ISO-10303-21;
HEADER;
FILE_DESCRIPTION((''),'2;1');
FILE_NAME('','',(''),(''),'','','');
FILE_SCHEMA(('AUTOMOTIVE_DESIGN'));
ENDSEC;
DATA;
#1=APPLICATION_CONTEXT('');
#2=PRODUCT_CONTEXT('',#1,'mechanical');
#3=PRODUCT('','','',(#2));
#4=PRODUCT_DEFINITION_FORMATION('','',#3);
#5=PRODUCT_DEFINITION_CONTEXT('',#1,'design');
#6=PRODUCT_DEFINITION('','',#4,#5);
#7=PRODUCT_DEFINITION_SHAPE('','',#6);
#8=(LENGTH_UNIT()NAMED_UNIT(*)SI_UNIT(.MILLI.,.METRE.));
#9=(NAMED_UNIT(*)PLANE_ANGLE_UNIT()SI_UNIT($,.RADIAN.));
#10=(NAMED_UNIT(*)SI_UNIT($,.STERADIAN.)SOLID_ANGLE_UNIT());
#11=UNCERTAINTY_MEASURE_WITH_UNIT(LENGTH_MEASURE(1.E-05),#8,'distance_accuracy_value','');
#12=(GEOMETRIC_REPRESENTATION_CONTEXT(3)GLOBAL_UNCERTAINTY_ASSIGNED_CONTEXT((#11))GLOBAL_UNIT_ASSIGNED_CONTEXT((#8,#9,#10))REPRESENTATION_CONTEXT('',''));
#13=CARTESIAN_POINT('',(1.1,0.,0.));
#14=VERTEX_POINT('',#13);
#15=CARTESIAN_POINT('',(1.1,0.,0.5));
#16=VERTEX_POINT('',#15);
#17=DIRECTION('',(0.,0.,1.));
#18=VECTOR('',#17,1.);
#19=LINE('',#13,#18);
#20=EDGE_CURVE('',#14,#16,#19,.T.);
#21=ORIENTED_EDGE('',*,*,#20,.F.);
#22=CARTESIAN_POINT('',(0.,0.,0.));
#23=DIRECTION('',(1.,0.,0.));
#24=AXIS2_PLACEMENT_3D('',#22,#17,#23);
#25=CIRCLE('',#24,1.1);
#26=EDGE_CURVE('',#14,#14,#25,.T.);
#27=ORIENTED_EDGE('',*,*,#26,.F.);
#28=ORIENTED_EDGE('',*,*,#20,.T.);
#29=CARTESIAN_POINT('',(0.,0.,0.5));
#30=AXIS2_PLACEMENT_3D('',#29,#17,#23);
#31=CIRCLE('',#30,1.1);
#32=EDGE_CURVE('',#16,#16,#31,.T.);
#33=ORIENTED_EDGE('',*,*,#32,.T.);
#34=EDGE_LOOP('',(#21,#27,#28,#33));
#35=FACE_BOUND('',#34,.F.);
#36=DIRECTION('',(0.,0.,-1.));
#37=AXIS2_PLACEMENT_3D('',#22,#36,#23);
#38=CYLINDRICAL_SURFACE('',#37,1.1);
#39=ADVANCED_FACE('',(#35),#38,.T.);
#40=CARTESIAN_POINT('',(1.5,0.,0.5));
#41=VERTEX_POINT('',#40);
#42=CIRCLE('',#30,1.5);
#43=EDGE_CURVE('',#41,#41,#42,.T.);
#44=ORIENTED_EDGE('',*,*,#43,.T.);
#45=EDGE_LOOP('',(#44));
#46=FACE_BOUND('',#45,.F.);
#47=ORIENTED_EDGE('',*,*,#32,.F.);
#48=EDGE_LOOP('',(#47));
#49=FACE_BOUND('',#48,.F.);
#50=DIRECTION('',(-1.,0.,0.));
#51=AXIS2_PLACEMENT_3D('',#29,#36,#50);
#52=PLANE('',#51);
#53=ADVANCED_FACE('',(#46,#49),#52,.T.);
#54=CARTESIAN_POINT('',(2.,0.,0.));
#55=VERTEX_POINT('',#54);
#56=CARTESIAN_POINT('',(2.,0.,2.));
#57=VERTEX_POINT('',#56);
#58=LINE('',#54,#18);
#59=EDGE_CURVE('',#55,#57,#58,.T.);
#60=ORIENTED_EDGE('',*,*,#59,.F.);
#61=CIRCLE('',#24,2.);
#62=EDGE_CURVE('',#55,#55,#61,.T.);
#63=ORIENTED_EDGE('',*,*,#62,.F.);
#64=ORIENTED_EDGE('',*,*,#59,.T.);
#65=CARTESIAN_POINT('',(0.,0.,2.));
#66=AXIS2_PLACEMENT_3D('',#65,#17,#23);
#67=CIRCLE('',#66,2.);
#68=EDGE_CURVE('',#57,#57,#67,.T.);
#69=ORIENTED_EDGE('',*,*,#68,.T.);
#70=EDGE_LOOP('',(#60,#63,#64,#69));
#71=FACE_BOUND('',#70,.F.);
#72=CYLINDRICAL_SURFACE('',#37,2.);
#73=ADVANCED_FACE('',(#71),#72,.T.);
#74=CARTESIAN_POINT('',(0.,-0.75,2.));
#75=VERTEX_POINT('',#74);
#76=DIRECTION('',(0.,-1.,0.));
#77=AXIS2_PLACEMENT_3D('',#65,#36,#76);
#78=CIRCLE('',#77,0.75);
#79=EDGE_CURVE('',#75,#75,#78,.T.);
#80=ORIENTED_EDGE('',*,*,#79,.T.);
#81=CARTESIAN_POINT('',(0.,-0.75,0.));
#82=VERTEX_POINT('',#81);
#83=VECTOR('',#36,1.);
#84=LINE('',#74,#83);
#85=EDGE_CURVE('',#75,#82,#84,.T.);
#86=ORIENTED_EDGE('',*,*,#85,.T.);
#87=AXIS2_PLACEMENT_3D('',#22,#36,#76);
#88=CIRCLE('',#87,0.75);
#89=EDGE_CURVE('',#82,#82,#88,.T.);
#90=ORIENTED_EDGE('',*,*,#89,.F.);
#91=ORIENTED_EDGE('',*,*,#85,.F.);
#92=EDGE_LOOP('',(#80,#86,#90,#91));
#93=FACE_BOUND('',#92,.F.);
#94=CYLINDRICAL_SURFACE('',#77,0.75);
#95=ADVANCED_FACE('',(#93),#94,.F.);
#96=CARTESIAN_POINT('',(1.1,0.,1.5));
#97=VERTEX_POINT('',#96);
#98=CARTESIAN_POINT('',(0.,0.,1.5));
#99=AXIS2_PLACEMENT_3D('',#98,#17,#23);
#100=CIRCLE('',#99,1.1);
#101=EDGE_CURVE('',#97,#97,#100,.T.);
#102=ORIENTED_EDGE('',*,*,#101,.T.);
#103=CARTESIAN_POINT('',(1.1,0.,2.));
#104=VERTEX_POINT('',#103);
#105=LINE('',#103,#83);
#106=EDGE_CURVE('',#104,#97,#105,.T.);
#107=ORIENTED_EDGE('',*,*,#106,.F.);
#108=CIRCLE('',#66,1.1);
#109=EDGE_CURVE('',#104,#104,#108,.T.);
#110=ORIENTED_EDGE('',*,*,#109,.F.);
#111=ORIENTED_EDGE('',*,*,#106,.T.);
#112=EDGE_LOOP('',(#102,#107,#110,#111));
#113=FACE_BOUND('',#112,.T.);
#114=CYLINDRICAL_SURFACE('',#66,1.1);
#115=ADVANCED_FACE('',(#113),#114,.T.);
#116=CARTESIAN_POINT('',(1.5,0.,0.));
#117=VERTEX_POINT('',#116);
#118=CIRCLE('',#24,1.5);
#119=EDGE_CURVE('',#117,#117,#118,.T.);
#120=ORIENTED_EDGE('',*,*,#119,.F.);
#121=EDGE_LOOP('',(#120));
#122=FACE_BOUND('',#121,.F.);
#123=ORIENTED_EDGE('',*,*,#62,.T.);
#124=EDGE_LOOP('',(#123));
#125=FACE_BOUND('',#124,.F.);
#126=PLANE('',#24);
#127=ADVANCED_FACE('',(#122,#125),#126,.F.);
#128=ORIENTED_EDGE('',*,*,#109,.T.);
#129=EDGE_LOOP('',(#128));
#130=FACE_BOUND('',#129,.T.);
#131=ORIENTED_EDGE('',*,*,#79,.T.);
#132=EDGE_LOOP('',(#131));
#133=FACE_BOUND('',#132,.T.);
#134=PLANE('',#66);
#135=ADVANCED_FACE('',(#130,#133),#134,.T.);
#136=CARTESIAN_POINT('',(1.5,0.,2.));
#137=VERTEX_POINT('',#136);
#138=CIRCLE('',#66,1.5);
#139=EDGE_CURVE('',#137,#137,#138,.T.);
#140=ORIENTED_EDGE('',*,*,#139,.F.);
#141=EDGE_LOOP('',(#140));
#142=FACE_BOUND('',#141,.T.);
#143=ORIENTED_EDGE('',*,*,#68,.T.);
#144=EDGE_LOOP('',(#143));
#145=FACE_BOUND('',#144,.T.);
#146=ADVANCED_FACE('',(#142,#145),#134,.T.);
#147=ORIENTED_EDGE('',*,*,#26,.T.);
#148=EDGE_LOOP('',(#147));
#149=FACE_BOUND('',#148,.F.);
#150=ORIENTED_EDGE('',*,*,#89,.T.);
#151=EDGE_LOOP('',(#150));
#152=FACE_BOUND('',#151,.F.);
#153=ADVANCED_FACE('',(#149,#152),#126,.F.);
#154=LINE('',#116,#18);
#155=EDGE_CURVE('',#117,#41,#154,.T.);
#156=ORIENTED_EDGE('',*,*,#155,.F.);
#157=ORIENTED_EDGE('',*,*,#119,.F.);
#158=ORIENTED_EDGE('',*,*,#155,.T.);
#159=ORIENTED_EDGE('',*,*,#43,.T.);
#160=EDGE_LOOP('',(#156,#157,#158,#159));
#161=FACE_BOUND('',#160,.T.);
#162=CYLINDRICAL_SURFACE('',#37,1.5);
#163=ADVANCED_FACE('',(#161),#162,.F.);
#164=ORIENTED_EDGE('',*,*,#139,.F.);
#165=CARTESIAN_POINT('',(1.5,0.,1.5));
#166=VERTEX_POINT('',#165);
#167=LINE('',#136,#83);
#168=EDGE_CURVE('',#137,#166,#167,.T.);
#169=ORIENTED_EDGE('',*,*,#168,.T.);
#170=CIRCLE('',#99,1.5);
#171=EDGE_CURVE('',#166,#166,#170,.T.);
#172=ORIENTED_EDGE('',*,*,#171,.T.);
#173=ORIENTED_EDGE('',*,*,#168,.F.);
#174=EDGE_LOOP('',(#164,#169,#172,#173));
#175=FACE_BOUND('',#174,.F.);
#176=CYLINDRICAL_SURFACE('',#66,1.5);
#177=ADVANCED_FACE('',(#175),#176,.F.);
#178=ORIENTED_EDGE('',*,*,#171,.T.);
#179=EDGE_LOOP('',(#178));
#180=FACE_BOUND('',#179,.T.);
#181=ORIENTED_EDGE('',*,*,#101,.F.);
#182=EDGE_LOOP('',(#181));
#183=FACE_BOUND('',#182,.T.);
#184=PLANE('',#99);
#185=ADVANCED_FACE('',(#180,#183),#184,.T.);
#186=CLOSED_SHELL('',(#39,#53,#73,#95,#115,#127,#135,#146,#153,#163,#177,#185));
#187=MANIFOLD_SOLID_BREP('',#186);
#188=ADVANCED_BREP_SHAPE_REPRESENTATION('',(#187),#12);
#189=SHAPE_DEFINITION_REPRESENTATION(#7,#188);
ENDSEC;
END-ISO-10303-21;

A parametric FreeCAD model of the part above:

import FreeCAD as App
import Part
import Sketcher
from FreeCAD import Vector
Q = App.Units.Quantity

doc = App.newDocument("Part")
params = doc.addObject("Spreadsheet::Sheet", "Params")
for row, (alias, value) in enumerate([
    ("sketch1_diameter", "4 mm"),
    ("pad1_length", "2 mm"),
    ("sketch2_diameter", "1.5 mm"),
    ("hole_diameter", "1.5 mm"),
    ("sketch3_diameter", "3 mm"),
    ("sketch3_diameter2", "2.2 mm"),
    ("pocket1_length", "0.5 mm"),
], start=1):
    params.set(f"A{row}", alias)
    params.set(f"B{row}", "=" + value)
    params.setAlias(f"B{row}", alias)

body = doc.addObject("PartDesign::Body", "Body")

# Sketch on XY plane
sketch1 = doc.addObject("Sketcher::SketchObject", "Sketch")
body.addObject(sketch1)
sketch1.AttachmentSupport = (doc.XY_Plane, [""])
sketch1.MapMode = "FlatFace"
sketch1.addGeometry(Part.Circle(Vector(0, 0, 0), Vector(0, 0, 1), 2), False)
sketch1.addConstraint([
    Sketcher.Constraint("Coincident", 0, 3, -1, 1),
    Sketcher.Constraint("Diameter", 0, Q("4 mm")),
])
sketch1.setExpression("Constraints[1]", "Params.sketch1_diameter")
pad1 = doc.addObject("PartDesign::Pad", "Pad")
body.addObject(pad1)
pad1.Profile = sketch1
pad1.setExpression("Length", "Params.pad1_length")

# Sketch on XY plane
sketch2 = doc.addObject("Sketcher::SketchObject", "Sketch001")
body.addObject(sketch2)
sketch2.AttachmentSupport = (doc.XY_Plane, [""])
sketch2.MapMode = "FlatFace"
sketch2.AttachmentOffset = App.Placement(Vector(0, 0, 2), App.Rotation())
sketch2.addGeometry(Part.Circle(Vector(0, 0, 0), Vector(0, 0, 1), 0.8), False)
sketch2.addConstraint([
    Sketcher.Constraint("Coincident", 0, 3, -1, 1),
    Sketcher.Constraint("Diameter", 0, Q("1.5 mm")),
])
sketch2.setExpression("Constraints[1]", "Params.sketch2_diameter")
doc.recompute()
hole = doc.addObject("PartDesign::Hole", "Hole")
body.addObject(hole)
hole.Profile = sketch2
hole.ThreadType = "None"
hole.setExpression("Diameter", "Params.hole_diameter")
hole.DepthType = "ThroughAll"

# Sketch on XY plane
sketch3 = doc.addObject("Sketcher::SketchObject", "Sketch002")
body.addObject(sketch3)
sketch3.AttachmentSupport = (doc.XY_Plane, [""])
sketch3.MapMode = "FlatFace"
sketch3.AttachmentOffset = App.Placement(Vector(0, 0, 2), App.Rotation())
sketch3.addGeometry([
    Part.Circle(Vector(0, 0, 0), Vector(0, 0, 1), 1.5),
    Part.Circle(Vector(0, 0, 0), Vector(0, 0, 1), 1.1),
], False)
sketch3.addConstraint([
    Sketcher.Constraint("Coincident", 0, 3, -1, 1),
    Sketcher.Constraint("Coincident", 1, 3, -1, 1),
    Sketcher.Constraint("Diameter", 0, Q("3 mm")),
    Sketcher.Constraint("Diameter", 1, Q("2.2 mm")),
])
sketch3.setExpression("Constraints[2]", "Params.sketch3_diameter")
sketch3.setExpression("Constraints[3]", "Params.sketch3_diameter2")
pocket1 = doc.addObject("PartDesign::Pocket", "Pocket")
body.addObject(pocket1)
pocket1.Profile = sketch3
pocket1.setExpression("Length", "Params.pocket1_length")
doc.recompute()

datumplane = doc.addObject("PartDesign::Plane", "DatumPlane")
body.addObject(datumplane)
datumplane.AttachmentSupport = (doc.XY_Plane, [""])
datumplane.MapMode = "FlatFace"
datumplane.AttachmentOffset = App.Placement(Vector(0, 0, 1), App.Rotation())
mirrored = doc.addObject("PartDesign::Mirrored", "Mirrored")
body.addObject(mirrored)
mirrored.Originals = [pocket1]
mirrored.MirrorPlane = (datumplane, [""])
body.Tip = mirrored

doc.recompute()
